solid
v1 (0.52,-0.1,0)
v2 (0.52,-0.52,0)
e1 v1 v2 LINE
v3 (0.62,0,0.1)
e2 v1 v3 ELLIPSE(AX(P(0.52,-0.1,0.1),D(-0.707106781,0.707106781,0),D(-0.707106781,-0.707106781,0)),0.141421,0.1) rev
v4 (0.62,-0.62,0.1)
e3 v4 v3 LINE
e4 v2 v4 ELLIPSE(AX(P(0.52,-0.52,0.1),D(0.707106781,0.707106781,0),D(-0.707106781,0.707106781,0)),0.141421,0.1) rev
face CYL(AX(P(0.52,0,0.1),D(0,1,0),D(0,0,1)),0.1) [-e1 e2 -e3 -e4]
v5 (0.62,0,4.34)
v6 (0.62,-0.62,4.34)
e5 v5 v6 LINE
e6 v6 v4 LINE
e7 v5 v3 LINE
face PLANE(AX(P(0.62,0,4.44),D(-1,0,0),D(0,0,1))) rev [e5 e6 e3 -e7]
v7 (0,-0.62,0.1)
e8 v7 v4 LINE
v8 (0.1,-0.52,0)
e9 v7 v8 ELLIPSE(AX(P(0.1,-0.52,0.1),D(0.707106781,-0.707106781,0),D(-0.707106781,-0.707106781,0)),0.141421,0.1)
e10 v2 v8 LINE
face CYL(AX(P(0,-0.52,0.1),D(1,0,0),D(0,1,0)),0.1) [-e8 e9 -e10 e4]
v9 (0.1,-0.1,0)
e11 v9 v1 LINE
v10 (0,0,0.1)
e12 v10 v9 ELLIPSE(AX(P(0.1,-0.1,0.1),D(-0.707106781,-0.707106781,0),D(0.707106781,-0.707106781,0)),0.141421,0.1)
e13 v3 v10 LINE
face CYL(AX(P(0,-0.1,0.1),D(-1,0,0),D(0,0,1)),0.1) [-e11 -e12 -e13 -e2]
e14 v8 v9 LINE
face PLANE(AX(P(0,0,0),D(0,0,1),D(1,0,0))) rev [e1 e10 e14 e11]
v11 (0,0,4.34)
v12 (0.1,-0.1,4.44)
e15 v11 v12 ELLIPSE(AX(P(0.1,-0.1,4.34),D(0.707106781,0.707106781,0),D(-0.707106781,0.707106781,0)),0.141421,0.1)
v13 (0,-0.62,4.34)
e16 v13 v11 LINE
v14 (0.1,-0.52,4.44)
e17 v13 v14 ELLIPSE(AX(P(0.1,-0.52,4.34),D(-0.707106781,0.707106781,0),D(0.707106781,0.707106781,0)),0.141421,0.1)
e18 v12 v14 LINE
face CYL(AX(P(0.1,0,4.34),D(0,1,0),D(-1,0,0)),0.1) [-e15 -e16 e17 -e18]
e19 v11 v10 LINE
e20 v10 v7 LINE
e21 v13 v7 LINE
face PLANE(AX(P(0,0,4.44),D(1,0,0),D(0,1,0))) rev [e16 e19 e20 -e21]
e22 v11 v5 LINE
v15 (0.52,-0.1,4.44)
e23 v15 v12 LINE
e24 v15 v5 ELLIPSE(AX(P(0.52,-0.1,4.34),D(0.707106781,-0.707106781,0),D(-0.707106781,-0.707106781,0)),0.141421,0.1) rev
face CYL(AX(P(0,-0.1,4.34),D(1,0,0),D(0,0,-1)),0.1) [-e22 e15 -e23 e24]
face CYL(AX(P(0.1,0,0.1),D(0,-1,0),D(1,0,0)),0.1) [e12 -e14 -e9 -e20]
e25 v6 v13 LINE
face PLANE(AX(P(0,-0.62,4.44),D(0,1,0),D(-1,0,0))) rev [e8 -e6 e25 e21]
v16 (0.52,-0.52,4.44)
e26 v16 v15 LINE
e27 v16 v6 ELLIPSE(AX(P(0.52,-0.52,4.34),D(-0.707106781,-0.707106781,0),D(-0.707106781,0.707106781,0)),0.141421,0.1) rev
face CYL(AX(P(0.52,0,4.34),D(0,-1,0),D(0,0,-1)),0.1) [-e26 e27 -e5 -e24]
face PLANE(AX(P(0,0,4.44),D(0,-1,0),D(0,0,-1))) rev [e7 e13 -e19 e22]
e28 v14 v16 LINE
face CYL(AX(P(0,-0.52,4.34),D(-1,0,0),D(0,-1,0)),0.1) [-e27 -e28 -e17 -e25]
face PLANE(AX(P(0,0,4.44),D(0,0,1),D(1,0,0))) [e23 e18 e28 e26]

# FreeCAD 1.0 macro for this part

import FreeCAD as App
import Part
import Sketcher


def edges_at(feature, points):
    """Names of the edges that pass closest to the given points."""
    edges = feature.Shape.Edges
    near = lambda p: min(range(len(edges)), key=lambda i: edges[i].distToShape(Part.Vertex(*p))[0])
    return sorted({f"Edge{near(p) + 1}" for p in points})

doc = App.newDocument("Part")
body = doc.addObject("PartDesign::Body", "Body")

# Sketch on XY plane
sketch1 = doc.addObject("Sketcher::SketchObject", "Sketch")
body.addObject(sketch1)
sketch1.AttachmentSupport = (doc.XY_Plane, [""])
sketch1.MapMode = "FlatFace"
sketch1.addGeometry([
    Part.LineSegment(App.Vector(0, 0, 0), App.Vector(0, -0.6, 0)),
    Part.LineSegment(App.Vector(0, -0.6, 0), App.Vector(0.6, -0.6, 0)),
    Part.LineSegment(App.Vector(0.6, -0.6, 0), App.Vector(0.6, 0, 0)),
    Part.LineSegment(App.Vector(0.6, 0, 0), App.Vector(0, 0, 0)),
], False)
sketch1.addConstraint([
    Sketcher.Constraint("Coincident", 0, 2, 1, 1),
    Sketcher.Constraint("Coincident", 1, 2, 2, 1),
    Sketcher.Constraint("Coincident", 2, 2, 3, 1),
    Sketcher.Constraint("Coincident", 3, 2, 0, 1),
    Sketcher.Constraint("Vertical", 0),
    Sketcher.Constraint("Horizontal", 1),
    Sketcher.Constraint("Vertical", 2),
    Sketcher.Constraint("Horizontal", 3),
    Sketcher.Constraint("Coincident", 3, 2, -1, 1),
    Sketcher.Constraint("Equal", 3, 0),
    Sketcher.Constraint("DistanceX", 1, 1, 1, 2, 0.62),
])
pad1 = doc.addObject("PartDesign::Pad", "Pad")
body.addObject(pad1)
pad1.Profile = sketch1
pad1.Length = 4.44
doc.recompute()

fillet = doc.addObject("PartDesign::Fillet", "Fillet")
body.addObject(fillet)
fillet.Base = (pad1, edges_at(pad1, [
    (0.62, -0.31, 4.44),
    (0.31, 0, 4.44),
    (0, -0.31, 4.44),
    (0.31, 0, 0),
    (0.62, -0.31, 0),
    (0.31, -0.62, 0),
    (0, -0.31, 0),
    (0.31, -0.62, 4.44),
]))
fillet.Radius = 0.1

doc.recompute()
